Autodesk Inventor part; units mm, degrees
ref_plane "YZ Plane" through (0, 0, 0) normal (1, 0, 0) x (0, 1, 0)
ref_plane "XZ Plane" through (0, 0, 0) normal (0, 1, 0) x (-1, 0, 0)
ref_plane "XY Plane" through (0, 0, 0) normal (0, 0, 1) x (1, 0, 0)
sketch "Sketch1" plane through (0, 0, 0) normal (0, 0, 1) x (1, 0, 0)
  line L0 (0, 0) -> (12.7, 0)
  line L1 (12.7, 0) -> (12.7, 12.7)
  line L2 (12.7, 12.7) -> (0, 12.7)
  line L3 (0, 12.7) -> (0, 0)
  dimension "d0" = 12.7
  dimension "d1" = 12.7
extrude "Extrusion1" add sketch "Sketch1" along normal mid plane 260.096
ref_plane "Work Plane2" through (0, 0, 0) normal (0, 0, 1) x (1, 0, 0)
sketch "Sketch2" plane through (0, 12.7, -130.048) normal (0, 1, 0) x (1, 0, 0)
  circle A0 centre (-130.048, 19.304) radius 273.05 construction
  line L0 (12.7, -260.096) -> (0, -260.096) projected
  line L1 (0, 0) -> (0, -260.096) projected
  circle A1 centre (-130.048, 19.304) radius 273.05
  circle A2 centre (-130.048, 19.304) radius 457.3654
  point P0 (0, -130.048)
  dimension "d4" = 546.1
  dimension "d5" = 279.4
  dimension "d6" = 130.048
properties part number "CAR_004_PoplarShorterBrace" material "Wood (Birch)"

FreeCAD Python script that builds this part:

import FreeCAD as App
import Part
import Sketcher
Q = App.Units.Quantity

doc = App.newDocument("Part")
body = doc.addObject("PartDesign::Body", "Body")

# Sketch on XY plane
sketch1 = body.newObject("Sketcher::SketchObject", "Sketch")
sketch1.AttachmentSupport = (doc.getObject("XY_Plane"), [""])
sketch1.MapMode = "FlatFace"
sketch1.addGeometry(Part.LineSegment(App.Vector(0, 12.7, 0), App.Vector(0, 0, 0)), False)
sketch1.addGeometry(Part.LineSegment(App.Vector(0, 0, 0), App.Vector(12.7, 0, 0)), False)
sketch1.addGeometry(Part.LineSegment(App.Vector(12.7, 0, 0), App.Vector(12.7, 12.7, 0)), False)
sketch1.addGeometry(Part.LineSegment(App.Vector(12.7, 12.7, 0), App.Vector(0, 12.7, 0)), False)
sketch1.addConstraint(Sketcher.Constraint("Coincident", 0, 2, 1, 1))
sketch1.addConstraint(Sketcher.Constraint("Coincident", 1, 2, 2, 1))
sketch1.addConstraint(Sketcher.Constraint("Coincident", 2, 2, 3, 1))
sketch1.addConstraint(Sketcher.Constraint("Coincident", 3, 2, 0, 1))
sketch1.addConstraint(Sketcher.Constraint("Vertical", 0))
sketch1.addConstraint(Sketcher.Constraint("Horizontal", 1))
sketch1.addConstraint(Sketcher.Constraint("Vertical", 2))
sketch1.addConstraint(Sketcher.Constraint("Horizontal", 3))
sketch1.addConstraint(Sketcher.Constraint("Coincident", 0, 2, -1, 1))
sketch1.addConstraint(Sketcher.Constraint("Equal", 3, 0))
sketch1.addConstraint(Sketcher.Constraint("DistanceX", 1, 1, 1, 2, Q("0.5 in")))
pad1 = body.newObject("PartDesign::Pad", "Pad")
pad1.Profile = sketch1
pad1.Length = Q("10.24 in")
pad1.Midplane = True

doc.recompute()
